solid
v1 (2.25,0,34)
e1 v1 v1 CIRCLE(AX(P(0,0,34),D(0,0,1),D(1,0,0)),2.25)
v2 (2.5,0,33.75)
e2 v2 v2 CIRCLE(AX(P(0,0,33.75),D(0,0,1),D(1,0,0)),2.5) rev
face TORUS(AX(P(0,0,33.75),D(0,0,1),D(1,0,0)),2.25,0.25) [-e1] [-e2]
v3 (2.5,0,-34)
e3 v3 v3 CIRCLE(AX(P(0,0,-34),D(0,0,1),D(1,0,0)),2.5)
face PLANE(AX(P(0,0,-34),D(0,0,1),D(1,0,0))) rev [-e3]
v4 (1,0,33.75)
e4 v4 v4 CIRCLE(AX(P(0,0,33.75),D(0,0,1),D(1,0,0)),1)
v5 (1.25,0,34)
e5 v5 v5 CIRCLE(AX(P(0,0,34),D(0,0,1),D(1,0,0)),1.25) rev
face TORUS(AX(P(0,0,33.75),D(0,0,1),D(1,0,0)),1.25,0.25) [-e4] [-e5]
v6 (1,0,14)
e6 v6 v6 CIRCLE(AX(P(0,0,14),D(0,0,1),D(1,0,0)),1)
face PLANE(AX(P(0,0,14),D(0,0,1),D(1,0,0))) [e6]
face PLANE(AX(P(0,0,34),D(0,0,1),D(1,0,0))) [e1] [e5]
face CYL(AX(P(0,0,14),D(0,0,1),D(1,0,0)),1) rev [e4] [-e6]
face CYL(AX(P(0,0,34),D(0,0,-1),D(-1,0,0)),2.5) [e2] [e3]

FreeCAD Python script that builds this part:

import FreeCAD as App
import Part
import Sketcher
Q = App.Units.Quantity


def edges_at(feature, points):
    """Names of the edges that pass closest to the given points."""
    edges = feature.Shape.Edges
    near = lambda p: min(range(len(edges)), key=lambda i: edges[i].distToShape(Part.Vertex(*p))[0])
    return sorted({f"Edge{near(p) + 1}" for p in points})

doc = App.newDocument("Part")
body = doc.addObject("PartDesign::Body", "Body")

# Sketch on XY plane
sketch1 = body.newObject("Sketcher::SketchObject", "Sketch")
sketch1.AttachmentSupport = (doc.getObject("XY_Plane"), [""])
sketch1.MapMode = "FlatFace"
sketch1.addGeometry(Part.Circle(App.Vector(0, 0, 0), App.Vector(0, 0, 1), 2.5), False)
sketch1.addConstraint([
    Sketcher.Constraint("Coincident", 0, 3, -1, 1),
    Sketcher.Constraint("Diameter", 0, Q("5 mm")),
])
pad1 = body.newObject("PartDesign::Pad", "Pad")
pad1.Profile = sketch1
pad1.Length = 68
pad1.Midplane = True

# Sketch on XY plane
sketch2 = body.newObject("Sketcher::SketchObject", "Sketch001")
sketch2.AttachmentSupport = (doc.getObject("XY_Plane"), [""])
sketch2.MapMode = "FlatFace"
sketch2.AttachmentOffset = App.Placement(App.Vector(0, 0, 34), App.Rotation())
sketch2.addGeometry(Part.Circle(App.Vector(0, 0, 0), App.Vector(0, 0, 1), 1), False)
sketch2.addConstraint([
    Sketcher.Constraint("Coincident", 0, 3, -1, 1),
    Sketcher.Constraint("Diameter", 0, Q("2 mm")),
])
pocket1 = body.newObject("PartDesign::Pocket", "Pocket")
pocket1.Profile = sketch2
pocket1.Length = 20
doc.recompute()

fillet = body.newObject("PartDesign::Fillet", "Fillet")
fillet.Base = (pocket1, edges_at(pocket1, [(-2.5, 0, 34), (-1, 0, 34)]))
fillet.Radius = 0.25

doc.recompute()
